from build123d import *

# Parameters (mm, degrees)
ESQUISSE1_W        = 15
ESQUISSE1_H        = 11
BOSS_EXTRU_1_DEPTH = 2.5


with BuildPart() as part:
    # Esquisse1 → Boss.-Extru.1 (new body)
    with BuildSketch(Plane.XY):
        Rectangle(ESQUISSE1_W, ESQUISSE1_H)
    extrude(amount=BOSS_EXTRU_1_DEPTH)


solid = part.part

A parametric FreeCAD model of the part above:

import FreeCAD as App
import Part
import Sketcher
from FreeCAD import Vector
Q = App.Units.Quantity


def add_polygon(sketch, points):
    """Adds a closed chain of lines whose ends are joined by coincident constraints."""
    first, n = sketch.GeometryCount, len(points)
    for a, b in zip(points, points[1:] + points[:1]):
        sketch.addGeometry(Part.LineSegment(App.Vector(*a, 0), App.Vector(*b, 0)), False)
    for i in range(n):
        sketch.addConstraint(Sketcher.Constraint("Coincident", first + i, 2, first + (i + 1) % n, 1))

doc = App.newDocument("Part")
params = doc.addObject("Spreadsheet::Sheet", "Params")
for row, (alias, value) in enumerate([
    ("sketch1_width", "15 mm"),
    ("sketch1_height", "11 mm"),
    ("pad1_length", "2.5 mm"),
], start=1):
    params.set(f"A{row}", alias)
    params.set(f"B{row}", "=" + value)
    params.setAlias(f"B{row}", alias)

body = doc.addObject("PartDesign::Body", "Body")

# Sketch on XY plane
sketch1 = body.newObject("Sketcher::SketchObject", "Sketch")
sketch1.AttachmentSupport = (doc.getObject("XY_Plane"), [""])
sketch1.MapMode = "FlatFace"
add_polygon(sketch1, [(-7.5, 5.5), (-7.5, -5.5), (7.5, -5.5), (7.5, 5.5)])  # lines 0-3
sketch1.addConstraint([
    Sketcher.Constraint("Vertical", 0),
    Sketcher.Constraint("Horizontal", 1),
    Sketcher.Constraint("Vertical", 2),
    Sketcher.Constraint("Horizontal", 3),
    Sketcher.Constraint("Symmetric", 0, 2, 2, 2, -1, 1),
    Sketcher.Constraint("DistanceX", 1, 1, 1, 2, Q("15 mm")),
    Sketcher.Constraint("DistanceY", 0, 2, 0, 1, Q("11 mm")),
])
sketch1.setExpression("Constraints[9]", "Params.sketch1_width")
sketch1.setExpression("Constraints[10]", "Params.sketch1_height")
pad1 = body.newObject("PartDesign::Pad", "Pad")
pad1.Profile = sketch1
pad1.setExpression("Length", "Params.pad1_length")

doc.recompute()
